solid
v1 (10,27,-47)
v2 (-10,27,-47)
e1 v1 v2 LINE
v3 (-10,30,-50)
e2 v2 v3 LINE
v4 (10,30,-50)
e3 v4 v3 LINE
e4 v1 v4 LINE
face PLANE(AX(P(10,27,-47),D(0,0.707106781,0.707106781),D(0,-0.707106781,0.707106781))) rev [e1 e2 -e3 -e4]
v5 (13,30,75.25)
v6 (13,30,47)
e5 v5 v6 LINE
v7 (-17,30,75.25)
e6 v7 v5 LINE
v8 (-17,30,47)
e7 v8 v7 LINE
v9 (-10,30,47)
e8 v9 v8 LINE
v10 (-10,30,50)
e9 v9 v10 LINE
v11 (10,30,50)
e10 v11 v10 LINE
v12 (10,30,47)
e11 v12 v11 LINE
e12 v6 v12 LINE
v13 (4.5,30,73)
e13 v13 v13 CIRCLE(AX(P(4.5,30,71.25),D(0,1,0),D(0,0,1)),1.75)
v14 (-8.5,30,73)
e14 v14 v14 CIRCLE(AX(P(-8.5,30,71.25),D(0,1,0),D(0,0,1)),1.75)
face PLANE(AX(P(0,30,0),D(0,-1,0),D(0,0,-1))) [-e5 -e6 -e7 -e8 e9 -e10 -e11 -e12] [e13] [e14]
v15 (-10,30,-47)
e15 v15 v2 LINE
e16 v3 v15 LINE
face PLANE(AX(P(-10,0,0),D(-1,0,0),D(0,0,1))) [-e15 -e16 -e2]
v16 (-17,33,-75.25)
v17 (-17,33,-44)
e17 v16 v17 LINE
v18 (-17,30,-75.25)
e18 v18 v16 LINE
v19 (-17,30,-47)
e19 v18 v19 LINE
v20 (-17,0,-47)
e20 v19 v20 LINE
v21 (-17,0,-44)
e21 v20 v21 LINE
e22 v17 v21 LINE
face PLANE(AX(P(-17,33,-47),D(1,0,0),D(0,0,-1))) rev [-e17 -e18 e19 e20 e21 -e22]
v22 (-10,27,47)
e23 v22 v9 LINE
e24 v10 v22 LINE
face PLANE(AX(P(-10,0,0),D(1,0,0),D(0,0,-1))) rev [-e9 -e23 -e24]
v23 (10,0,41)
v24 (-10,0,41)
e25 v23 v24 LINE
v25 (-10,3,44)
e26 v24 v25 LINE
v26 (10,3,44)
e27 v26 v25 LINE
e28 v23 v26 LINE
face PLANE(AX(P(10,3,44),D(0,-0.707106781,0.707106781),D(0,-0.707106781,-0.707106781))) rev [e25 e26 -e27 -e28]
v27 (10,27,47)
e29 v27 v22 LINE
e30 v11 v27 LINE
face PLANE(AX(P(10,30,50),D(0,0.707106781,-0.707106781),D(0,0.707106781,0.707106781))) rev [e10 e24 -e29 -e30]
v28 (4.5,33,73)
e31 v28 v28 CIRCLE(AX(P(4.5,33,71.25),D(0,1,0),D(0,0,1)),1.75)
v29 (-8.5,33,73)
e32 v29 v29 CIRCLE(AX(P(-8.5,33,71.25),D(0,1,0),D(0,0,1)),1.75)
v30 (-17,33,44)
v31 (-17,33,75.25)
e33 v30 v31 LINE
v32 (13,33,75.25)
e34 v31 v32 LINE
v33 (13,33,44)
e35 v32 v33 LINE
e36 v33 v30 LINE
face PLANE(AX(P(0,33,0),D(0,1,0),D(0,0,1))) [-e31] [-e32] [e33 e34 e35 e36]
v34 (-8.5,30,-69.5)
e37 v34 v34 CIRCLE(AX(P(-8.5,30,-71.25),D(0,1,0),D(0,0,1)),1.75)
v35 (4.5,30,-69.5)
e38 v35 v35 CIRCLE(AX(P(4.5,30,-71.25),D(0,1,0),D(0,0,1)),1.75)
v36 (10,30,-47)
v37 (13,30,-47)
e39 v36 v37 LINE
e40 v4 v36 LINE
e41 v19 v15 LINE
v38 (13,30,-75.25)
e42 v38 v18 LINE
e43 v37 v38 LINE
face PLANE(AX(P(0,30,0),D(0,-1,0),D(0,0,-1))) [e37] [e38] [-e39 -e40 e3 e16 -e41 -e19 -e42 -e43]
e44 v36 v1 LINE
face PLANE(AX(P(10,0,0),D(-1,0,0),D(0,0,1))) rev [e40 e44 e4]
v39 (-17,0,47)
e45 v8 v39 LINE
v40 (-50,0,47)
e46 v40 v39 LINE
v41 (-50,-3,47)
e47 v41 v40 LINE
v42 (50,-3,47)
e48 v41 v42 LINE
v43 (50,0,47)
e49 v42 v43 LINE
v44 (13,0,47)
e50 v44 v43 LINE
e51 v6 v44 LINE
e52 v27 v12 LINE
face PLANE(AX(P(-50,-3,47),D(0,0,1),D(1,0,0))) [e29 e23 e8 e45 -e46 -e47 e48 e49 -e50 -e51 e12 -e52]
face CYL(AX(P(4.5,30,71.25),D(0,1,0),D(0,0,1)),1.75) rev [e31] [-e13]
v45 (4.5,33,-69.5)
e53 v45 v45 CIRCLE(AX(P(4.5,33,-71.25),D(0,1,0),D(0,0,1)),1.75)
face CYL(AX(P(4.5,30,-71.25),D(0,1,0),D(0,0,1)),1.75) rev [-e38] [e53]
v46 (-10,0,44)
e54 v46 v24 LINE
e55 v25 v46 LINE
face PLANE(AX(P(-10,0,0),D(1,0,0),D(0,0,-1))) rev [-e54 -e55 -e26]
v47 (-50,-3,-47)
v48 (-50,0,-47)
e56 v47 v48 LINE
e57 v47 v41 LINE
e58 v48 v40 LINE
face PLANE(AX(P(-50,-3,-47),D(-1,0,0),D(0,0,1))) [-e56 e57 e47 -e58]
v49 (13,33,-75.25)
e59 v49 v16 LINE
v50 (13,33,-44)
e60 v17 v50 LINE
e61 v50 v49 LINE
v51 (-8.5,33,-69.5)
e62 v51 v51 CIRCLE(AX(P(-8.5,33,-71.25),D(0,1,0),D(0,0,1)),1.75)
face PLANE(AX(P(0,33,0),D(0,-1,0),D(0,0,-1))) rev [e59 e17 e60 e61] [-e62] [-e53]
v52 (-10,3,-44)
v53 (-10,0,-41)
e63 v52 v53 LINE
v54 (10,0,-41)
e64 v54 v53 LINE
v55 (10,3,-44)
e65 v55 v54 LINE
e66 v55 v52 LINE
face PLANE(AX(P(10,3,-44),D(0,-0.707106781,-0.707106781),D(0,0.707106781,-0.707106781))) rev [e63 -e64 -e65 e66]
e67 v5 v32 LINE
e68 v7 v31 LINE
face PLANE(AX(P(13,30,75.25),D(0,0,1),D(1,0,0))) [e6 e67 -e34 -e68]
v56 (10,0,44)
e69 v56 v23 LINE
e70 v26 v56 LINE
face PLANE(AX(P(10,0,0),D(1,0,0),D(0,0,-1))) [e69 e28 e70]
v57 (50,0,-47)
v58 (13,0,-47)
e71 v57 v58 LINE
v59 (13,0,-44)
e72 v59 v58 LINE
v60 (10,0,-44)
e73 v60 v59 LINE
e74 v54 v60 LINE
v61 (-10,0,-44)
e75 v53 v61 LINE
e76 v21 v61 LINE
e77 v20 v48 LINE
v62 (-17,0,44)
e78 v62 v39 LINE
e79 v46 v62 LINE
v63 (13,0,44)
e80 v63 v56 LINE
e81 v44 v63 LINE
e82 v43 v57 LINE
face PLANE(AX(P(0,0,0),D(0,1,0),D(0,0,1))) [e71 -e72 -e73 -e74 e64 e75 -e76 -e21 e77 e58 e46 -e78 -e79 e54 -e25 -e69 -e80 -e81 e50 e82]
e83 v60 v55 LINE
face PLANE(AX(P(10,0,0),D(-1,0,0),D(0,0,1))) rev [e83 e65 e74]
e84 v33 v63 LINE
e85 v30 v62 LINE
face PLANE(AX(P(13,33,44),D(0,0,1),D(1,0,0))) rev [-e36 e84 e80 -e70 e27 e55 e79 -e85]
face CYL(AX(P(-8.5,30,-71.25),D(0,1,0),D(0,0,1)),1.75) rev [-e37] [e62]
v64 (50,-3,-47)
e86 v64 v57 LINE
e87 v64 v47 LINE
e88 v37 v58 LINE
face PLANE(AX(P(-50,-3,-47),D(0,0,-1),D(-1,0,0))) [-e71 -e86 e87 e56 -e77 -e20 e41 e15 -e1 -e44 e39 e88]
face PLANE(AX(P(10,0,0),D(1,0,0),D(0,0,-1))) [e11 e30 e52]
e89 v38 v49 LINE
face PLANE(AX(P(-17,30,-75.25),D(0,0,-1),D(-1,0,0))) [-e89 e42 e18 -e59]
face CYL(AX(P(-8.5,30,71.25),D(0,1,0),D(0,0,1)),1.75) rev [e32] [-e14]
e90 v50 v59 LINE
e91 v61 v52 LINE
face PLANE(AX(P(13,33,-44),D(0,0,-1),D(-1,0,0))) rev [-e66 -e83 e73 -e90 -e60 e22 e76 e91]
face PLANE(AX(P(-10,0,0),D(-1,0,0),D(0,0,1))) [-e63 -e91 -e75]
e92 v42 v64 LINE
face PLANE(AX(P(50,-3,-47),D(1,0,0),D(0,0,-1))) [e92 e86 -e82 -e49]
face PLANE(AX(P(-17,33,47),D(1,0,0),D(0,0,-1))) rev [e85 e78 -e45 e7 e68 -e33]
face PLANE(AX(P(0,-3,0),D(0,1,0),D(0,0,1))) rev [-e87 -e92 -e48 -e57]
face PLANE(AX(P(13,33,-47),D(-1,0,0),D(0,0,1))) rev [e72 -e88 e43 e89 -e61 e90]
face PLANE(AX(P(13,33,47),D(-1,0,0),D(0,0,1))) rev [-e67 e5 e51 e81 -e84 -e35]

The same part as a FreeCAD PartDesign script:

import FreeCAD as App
import Part
import Sketcher

doc = App.newDocument("Part")
body = doc.addObject("PartDesign::Body", "Body")

# Sketch on XZ plane
sketch1 = body.newObject("Sketcher::SketchObject", "Sketch")
sketch1.AttachmentSupport = (doc.getObject("XZ_Plane"), [""])
sketch1.MapMode = "FlatFace"
sketch1.addGeometry([
    Part.LineSegment(App.Vector(-50, -47, 0), App.Vector(-50, 47, 0)),
    Part.LineSegment(App.Vector(-50, 47, 0), App.Vector(50, 47, 0)),
    Part.LineSegment(App.Vector(50, 47, 0), App.Vector(50, -47, 0)),
    Part.LineSegment(App.Vector(50, -47, 0), App.Vector(-50, -47, 0)),
], False)
sketch1.addConstraint([
    Sketcher.Constraint("Coincident", 0, 2, 1, 1),
    Sketcher.Constraint("Coincident", 1, 2, 2, 1),
    Sketcher.Constraint("Coincident", 2, 2, 3, 1),
    Sketcher.Constraint("Coincident", 3, 2, 0, 1),
    Sketcher.Constraint("Vertical", 0),
    Sketcher.Constraint("Horizontal", 1),
    Sketcher.Constraint("Vertical", 2),
    Sketcher.Constraint("Horizontal", 3),
    Sketcher.Constraint("Symmetric", 0, 2, 2, 2, -1, 1),
    Sketcher.Constraint("DistanceX", 1, 1, 1, 2, 100.0),
    Sketcher.Constraint("DistanceY", 0, 1, 0, 2, 94.0),
])
pad1 = body.newObject("PartDesign::Pad", "Pad")
pad1.Profile = sketch1
pad1.Length = 3

# Sketch on XZ plane
sketch2 = body.newObject("Sketcher::SketchObject", "Sketch001")
sketch2.AttachmentSupport = (doc.getObject("XZ_Plane"), [""])
sketch2.MapMode = "FlatFace"
sketch2.addGeometry([
    Part.LineSegment(App.Vector(-17, -47, 0), App.Vector(-17, -44, 0)),  # 0
    Part.LineSegment(App.Vector(-17, -44, 0), App.Vector(13, -44, 0)),  # 1
    Part.LineSegment(App.Vector(13, -44, 0), App.Vector(13, -47, 0)),  # 2
    Part.LineSegment(App.Vector(13, -47, 0), App.Vector(-17, -47, 0)),  # 3
    Part.LineSegment(App.Vector(-17, 44, 0), App.Vector(-17, 47, 0)),  # 4
    Part.LineSegment(App.Vector(-17, 47, 0), App.Vector(13, 47, 0)),  # 5
    Part.LineSegment(App.Vector(13, 47, 0), App.Vector(13, 44, 0)),  # 6
    Part.LineSegment(App.Vector(13, 44, 0), App.Vector(-17, 44, 0)),  # 7
], False)
sketch2.addConstraint([
    Sketcher.Constraint("Coincident", 0, 2, 1, 1),
    Sketcher.Constraint("Coincident", 1, 2, 2, 1),
    Sketcher.Constraint("Coincident", 2, 2, 3, 1),
    Sketcher.Constraint("Coincident", 3, 2, 0, 1),
    Sketcher.Constraint("Coincident", 4, 2, 5, 1),
    Sketcher.Constraint("Coincident", 5, 2, 6, 1),
    Sketcher.Constraint("Coincident", 6, 2, 7, 1),
    Sketcher.Constraint("Coincident", 7, 2, 4, 1),
    Sketcher.Constraint("Vertical", 0),
    Sketcher.Constraint("Horizontal", 1),
    Sketcher.Constraint("Vertical", 2),
    Sketcher.Constraint("Horizontal", 3),
    Sketcher.Constraint("Vertical", 4),
    Sketcher.Constraint("Horizontal", 5),
    Sketcher.Constraint("Vertical", 6),
    Sketcher.Constraint("Horizontal", 7),
    Sketcher.Constraint("Symmetric", 3, 2, 4, 2, -1),
    Sketcher.Constraint("Symmetric", 1, 2, 6, 2, -1),
    Sketcher.Constraint("DistanceX", 1, 1, 1, 2, 30.0),
    Sketcher.Constraint("DistanceY", 0, 1, 0, 2, 3.0),
    Sketcher.Constraint("DistanceX", 0, 2, -1, 1, 17.0),
    Sketcher.Constraint("DistanceY", 0, 2, -1, 1, 44.0),
])
pad2 = body.newObject("PartDesign::Pad", "Pad001")
pad2.Profile = sketch2
pad2.Length = 33
pad2.Reversed = True

# Sketch on YZ plane
sketch3 = body.newObject("Sketcher::SketchObject", "Sketch002")
sketch3.AttachmentSupport = (doc.getObject("YZ_Plane"), [""])
sketch3.MapMode = "FlatFace"
sketch3.addGeometry([
    Part.LineSegment(App.Vector(0, 41, 0), App.Vector(3, 44, 0)),  # 0
    Part.LineSegment(App.Vector(3, 44, 0), App.Vector(0, 44, 0)),  # 1
    Part.LineSegment(App.Vector(0, 44, 0), App.Vector(0, 41, 0)),  # 2
    Part.LineSegment(App.Vector(3, -44, 0), App.Vector(0, -41, 0)),  # 3
    Part.LineSegment(App.Vector(0, -41, 0), App.Vector(0, -44, 0)),  # 4
    Part.LineSegment(App.Vector(0, -44, 0), App.Vector(3, -44, 0)),  # 5
    Part.LineSegment(App.Vector(30, 47, 0), App.Vector(30, 50, 0)),  # 6
    Part.LineSegment(App.Vector(30, 50, 0), App.Vector(27, 47, 0)),  # 7
    Part.LineSegment(App.Vector(27, 47, 0), App.Vector(30, 47, 0)),  # 8
    Part.LineSegment(App.Vector(30, -47, 0), App.Vector(27, -47, 0)),  # 9
    Part.LineSegment(App.Vector(27, -47, 0), App.Vector(30, -50, 0)),  # 10
    Part.LineSegment(App.Vector(30, -50, 0), App.Vector(30, -47, 0)),  # 11
], False)
sketch3.addConstraint([
    Sketcher.Constraint("Coincident", 0, 2, 1, 1),
    Sketcher.Constraint("Coincident", 1, 2, 2, 1),
    Sketcher.Constraint("Coincident", 2, 2, 0, 1),
    Sketcher.Constraint("Coincident", 3, 2, 4, 1),
    Sketcher.Constraint("Coincident", 4, 2, 5, 1),
    Sketcher.Constraint("Coincident", 5, 2, 3, 1),
    Sketcher.Constraint("Coincident", 6, 2, 7, 1),
    Sketcher.Constraint("Coincident", 7, 2, 8, 1),
    Sketcher.Constraint("Coincident", 8, 2, 6, 1),
    Sketcher.Constraint("Coincident", 9, 2, 10, 1),
    Sketcher.Constraint("Coincident", 10, 2, 11, 1),
    Sketcher.Constraint("Coincident", 11, 2, 9, 1),
    Sketcher.Constraint("Horizontal", 1),
    Sketcher.Constraint("Vertical", 2),
    Sketcher.Constraint("Vertical", 4),
    Sketcher.Constraint("Horizontal", 5),
    Sketcher.Constraint("Vertical", 6),
    Sketcher.Constraint("Horizontal", 8),
    Sketcher.Constraint("Horizontal", 9),
    Sketcher.Constraint("Vertical", 11),
    Sketcher.Constraint("Symmetric", 2, 2, 3, 2, -1, 1),
    Sketcher.Constraint("Symmetric", 1, 2, 4, 2, -1),
    Sketcher.Constraint("Symmetric", 7, 2, 9, 2, -1),
    Sketcher.Constraint("Symmetric", 6, 2, 10, 2, -1),
    Sketcher.Constraint("Perpendicular", 0, 3),
    Sketcher.Constraint("Perpendicular", 3, 7),
    Sketcher.Constraint("Perpendicular", 7, 10),
    Sketcher.Constraint("Equal", 5, 8),
    Sketcher.Constraint("DistanceX", 1, 2, 1, 1, 3.0),
    Sketcher.Constraint("DistanceY", -1, 1, 0, 2, 44.0),
    Sketcher.Constraint("DistanceX", -1, 1, 6, 2, 30.0),
    Sketcher.Constraint("DistanceY", -1, 1, 6, 2, 50.0),
])
pad3 = body.newObject("PartDesign::Pad", "Pad002")
pad3.Profile = sketch3
pad3.Length = 20
pad3.Midplane = True

# Sketch on XZ plane
sketch4 = body.newObject("Sketcher::SketchObject", "Sketch003")
sketch4.AttachmentSupport = (doc.getObject("XZ_Plane"), [""])
sketch4.MapMode = "FlatFace"
sketch4.AttachmentOffset = App.Placement(App.Vector(0, 0, -33), App.Rotation())
sketch4.addGeometry([
    Part.LineSegment(App.Vector(-17, -75.2, 0), App.Vector(-17, -47, 0)),  # 0
    Part.LineSegment(App.Vector(-17, -47, 0), App.Vector(13, -47, 0)),  # 1
    Part.LineSegment(App.Vector(13, -47, 0), App.Vector(13, -75.2, 0)),  # 2
    Part.LineSegment(App.Vector(13, -75.2, 0), App.Vector(-17, -75.2, 0)),  # 3
    Part.Circle(App.Vector(-8.5, -71.2, 0), App.Vector(0, 0, 1), 1.8),  # 4
    Part.Circle(App.Vector(4.5, -71.2, 0), App.Vector(0, 0, 1), 1.8),  # 5
    Part.LineSegment(App.Vector(-17, 47, 0), App.Vector(-17, 75.2, 0)),  # 6
    Part.LineSegment(App.Vector(-17, 75.2, 0), App.Vector(13, 75.2, 0)),  # 7
    Part.LineSegment(App.Vector(13, 75.2, 0), App.Vector(13, 47, 0)),  # 8
    Part.LineSegment(App.Vector(13, 47, 0), App.Vector(-17, 47, 0)),  # 9
    Part.Circle(App.Vector(-8.5, 71.2, 0), App.Vector(0, 0, 1), 1.8),  # 10
    Part.Circle(App.Vector(4.5, 71.2, 0), App.Vector(0, 0, 1), 1.8),  # 11
], False)
sketch4.addConstraint([
    Sketcher.Constraint("Coincident", 0, 2, 1, 1),
    Sketcher.Constraint("Coincident", 1, 2, 2, 1),
    Sketcher.Constraint("Coincident", 2, 2, 3, 1),
    Sketcher.Constraint("Coincident", 3, 2, 0, 1),
    Sketcher.Constraint("Coincident", 6, 2, 7, 1),
    Sketcher.Constraint("Coincident", 7, 2, 8, 1),
    Sketcher.Constraint("Coincident", 8, 2, 9, 1),
    Sketcher.Constraint("Coincident", 9, 2, 6, 1),
    Sketcher.Constraint("Vertical", 0),
    Sketcher.Constraint("Horizontal", 1),
    Sketcher.Constraint("Vertical", 2),
    Sketcher.Constraint("Horizontal", 3),
    Sketcher.Constraint("Vertical", 6),
    Sketcher.Constraint("Horizontal", 7),
    Sketcher.Constraint("Vertical", 8),
    Sketcher.Constraint("Horizontal", 9),
    Sketcher.Constraint("Equal", 4, 5),
    Sketcher.Constraint("Equal", 5, 10),
    Sketcher.Constraint("Equal", 10, 11),
    Sketcher.Constraint("Symmetric", 4, 3, 10, 3, -1),
    Sketcher.Constraint("Symmetric", 5, 3, 11, 3, -1),
    Sketcher.Constraint("Symmetric", 3, 2, 6, 2, -1),
    Sketcher.Constraint("Symmetric", 1, 2, 8, 2, -1),
    Sketcher.Constraint("Horizontal", 4, 3, 5, 3),
    Sketcher.Constraint("Diameter", 4, 3.5),
    Sketcher.Constraint("DistanceX", 1, 1, 1, 2, 30.0),
    Sketcher.Constraint("DistanceX", 0, 2, -1, 1, 17.0),
    Sketcher.Constraint("DistanceY", 0, 2, -1, 1, 47.0),
    Sketcher.Constraint("DistanceX", 4, 3, 5, 3, 13.0),
    Sketcher.Constraint("DistanceY", 2, 2, 5, 3, 4.0),
    Sketcher.Constraint("DistanceY", 0, 1, 0, 2, 28.25),
    Sketcher.Constraint("DistanceX", 4, 3, -1, 1, 8.5),
])
pad4 = body.newObject("PartDesign::Pad", "Pad003")
pad4.Profile = sketch4
pad4.Length = 3

doc.recompute()
